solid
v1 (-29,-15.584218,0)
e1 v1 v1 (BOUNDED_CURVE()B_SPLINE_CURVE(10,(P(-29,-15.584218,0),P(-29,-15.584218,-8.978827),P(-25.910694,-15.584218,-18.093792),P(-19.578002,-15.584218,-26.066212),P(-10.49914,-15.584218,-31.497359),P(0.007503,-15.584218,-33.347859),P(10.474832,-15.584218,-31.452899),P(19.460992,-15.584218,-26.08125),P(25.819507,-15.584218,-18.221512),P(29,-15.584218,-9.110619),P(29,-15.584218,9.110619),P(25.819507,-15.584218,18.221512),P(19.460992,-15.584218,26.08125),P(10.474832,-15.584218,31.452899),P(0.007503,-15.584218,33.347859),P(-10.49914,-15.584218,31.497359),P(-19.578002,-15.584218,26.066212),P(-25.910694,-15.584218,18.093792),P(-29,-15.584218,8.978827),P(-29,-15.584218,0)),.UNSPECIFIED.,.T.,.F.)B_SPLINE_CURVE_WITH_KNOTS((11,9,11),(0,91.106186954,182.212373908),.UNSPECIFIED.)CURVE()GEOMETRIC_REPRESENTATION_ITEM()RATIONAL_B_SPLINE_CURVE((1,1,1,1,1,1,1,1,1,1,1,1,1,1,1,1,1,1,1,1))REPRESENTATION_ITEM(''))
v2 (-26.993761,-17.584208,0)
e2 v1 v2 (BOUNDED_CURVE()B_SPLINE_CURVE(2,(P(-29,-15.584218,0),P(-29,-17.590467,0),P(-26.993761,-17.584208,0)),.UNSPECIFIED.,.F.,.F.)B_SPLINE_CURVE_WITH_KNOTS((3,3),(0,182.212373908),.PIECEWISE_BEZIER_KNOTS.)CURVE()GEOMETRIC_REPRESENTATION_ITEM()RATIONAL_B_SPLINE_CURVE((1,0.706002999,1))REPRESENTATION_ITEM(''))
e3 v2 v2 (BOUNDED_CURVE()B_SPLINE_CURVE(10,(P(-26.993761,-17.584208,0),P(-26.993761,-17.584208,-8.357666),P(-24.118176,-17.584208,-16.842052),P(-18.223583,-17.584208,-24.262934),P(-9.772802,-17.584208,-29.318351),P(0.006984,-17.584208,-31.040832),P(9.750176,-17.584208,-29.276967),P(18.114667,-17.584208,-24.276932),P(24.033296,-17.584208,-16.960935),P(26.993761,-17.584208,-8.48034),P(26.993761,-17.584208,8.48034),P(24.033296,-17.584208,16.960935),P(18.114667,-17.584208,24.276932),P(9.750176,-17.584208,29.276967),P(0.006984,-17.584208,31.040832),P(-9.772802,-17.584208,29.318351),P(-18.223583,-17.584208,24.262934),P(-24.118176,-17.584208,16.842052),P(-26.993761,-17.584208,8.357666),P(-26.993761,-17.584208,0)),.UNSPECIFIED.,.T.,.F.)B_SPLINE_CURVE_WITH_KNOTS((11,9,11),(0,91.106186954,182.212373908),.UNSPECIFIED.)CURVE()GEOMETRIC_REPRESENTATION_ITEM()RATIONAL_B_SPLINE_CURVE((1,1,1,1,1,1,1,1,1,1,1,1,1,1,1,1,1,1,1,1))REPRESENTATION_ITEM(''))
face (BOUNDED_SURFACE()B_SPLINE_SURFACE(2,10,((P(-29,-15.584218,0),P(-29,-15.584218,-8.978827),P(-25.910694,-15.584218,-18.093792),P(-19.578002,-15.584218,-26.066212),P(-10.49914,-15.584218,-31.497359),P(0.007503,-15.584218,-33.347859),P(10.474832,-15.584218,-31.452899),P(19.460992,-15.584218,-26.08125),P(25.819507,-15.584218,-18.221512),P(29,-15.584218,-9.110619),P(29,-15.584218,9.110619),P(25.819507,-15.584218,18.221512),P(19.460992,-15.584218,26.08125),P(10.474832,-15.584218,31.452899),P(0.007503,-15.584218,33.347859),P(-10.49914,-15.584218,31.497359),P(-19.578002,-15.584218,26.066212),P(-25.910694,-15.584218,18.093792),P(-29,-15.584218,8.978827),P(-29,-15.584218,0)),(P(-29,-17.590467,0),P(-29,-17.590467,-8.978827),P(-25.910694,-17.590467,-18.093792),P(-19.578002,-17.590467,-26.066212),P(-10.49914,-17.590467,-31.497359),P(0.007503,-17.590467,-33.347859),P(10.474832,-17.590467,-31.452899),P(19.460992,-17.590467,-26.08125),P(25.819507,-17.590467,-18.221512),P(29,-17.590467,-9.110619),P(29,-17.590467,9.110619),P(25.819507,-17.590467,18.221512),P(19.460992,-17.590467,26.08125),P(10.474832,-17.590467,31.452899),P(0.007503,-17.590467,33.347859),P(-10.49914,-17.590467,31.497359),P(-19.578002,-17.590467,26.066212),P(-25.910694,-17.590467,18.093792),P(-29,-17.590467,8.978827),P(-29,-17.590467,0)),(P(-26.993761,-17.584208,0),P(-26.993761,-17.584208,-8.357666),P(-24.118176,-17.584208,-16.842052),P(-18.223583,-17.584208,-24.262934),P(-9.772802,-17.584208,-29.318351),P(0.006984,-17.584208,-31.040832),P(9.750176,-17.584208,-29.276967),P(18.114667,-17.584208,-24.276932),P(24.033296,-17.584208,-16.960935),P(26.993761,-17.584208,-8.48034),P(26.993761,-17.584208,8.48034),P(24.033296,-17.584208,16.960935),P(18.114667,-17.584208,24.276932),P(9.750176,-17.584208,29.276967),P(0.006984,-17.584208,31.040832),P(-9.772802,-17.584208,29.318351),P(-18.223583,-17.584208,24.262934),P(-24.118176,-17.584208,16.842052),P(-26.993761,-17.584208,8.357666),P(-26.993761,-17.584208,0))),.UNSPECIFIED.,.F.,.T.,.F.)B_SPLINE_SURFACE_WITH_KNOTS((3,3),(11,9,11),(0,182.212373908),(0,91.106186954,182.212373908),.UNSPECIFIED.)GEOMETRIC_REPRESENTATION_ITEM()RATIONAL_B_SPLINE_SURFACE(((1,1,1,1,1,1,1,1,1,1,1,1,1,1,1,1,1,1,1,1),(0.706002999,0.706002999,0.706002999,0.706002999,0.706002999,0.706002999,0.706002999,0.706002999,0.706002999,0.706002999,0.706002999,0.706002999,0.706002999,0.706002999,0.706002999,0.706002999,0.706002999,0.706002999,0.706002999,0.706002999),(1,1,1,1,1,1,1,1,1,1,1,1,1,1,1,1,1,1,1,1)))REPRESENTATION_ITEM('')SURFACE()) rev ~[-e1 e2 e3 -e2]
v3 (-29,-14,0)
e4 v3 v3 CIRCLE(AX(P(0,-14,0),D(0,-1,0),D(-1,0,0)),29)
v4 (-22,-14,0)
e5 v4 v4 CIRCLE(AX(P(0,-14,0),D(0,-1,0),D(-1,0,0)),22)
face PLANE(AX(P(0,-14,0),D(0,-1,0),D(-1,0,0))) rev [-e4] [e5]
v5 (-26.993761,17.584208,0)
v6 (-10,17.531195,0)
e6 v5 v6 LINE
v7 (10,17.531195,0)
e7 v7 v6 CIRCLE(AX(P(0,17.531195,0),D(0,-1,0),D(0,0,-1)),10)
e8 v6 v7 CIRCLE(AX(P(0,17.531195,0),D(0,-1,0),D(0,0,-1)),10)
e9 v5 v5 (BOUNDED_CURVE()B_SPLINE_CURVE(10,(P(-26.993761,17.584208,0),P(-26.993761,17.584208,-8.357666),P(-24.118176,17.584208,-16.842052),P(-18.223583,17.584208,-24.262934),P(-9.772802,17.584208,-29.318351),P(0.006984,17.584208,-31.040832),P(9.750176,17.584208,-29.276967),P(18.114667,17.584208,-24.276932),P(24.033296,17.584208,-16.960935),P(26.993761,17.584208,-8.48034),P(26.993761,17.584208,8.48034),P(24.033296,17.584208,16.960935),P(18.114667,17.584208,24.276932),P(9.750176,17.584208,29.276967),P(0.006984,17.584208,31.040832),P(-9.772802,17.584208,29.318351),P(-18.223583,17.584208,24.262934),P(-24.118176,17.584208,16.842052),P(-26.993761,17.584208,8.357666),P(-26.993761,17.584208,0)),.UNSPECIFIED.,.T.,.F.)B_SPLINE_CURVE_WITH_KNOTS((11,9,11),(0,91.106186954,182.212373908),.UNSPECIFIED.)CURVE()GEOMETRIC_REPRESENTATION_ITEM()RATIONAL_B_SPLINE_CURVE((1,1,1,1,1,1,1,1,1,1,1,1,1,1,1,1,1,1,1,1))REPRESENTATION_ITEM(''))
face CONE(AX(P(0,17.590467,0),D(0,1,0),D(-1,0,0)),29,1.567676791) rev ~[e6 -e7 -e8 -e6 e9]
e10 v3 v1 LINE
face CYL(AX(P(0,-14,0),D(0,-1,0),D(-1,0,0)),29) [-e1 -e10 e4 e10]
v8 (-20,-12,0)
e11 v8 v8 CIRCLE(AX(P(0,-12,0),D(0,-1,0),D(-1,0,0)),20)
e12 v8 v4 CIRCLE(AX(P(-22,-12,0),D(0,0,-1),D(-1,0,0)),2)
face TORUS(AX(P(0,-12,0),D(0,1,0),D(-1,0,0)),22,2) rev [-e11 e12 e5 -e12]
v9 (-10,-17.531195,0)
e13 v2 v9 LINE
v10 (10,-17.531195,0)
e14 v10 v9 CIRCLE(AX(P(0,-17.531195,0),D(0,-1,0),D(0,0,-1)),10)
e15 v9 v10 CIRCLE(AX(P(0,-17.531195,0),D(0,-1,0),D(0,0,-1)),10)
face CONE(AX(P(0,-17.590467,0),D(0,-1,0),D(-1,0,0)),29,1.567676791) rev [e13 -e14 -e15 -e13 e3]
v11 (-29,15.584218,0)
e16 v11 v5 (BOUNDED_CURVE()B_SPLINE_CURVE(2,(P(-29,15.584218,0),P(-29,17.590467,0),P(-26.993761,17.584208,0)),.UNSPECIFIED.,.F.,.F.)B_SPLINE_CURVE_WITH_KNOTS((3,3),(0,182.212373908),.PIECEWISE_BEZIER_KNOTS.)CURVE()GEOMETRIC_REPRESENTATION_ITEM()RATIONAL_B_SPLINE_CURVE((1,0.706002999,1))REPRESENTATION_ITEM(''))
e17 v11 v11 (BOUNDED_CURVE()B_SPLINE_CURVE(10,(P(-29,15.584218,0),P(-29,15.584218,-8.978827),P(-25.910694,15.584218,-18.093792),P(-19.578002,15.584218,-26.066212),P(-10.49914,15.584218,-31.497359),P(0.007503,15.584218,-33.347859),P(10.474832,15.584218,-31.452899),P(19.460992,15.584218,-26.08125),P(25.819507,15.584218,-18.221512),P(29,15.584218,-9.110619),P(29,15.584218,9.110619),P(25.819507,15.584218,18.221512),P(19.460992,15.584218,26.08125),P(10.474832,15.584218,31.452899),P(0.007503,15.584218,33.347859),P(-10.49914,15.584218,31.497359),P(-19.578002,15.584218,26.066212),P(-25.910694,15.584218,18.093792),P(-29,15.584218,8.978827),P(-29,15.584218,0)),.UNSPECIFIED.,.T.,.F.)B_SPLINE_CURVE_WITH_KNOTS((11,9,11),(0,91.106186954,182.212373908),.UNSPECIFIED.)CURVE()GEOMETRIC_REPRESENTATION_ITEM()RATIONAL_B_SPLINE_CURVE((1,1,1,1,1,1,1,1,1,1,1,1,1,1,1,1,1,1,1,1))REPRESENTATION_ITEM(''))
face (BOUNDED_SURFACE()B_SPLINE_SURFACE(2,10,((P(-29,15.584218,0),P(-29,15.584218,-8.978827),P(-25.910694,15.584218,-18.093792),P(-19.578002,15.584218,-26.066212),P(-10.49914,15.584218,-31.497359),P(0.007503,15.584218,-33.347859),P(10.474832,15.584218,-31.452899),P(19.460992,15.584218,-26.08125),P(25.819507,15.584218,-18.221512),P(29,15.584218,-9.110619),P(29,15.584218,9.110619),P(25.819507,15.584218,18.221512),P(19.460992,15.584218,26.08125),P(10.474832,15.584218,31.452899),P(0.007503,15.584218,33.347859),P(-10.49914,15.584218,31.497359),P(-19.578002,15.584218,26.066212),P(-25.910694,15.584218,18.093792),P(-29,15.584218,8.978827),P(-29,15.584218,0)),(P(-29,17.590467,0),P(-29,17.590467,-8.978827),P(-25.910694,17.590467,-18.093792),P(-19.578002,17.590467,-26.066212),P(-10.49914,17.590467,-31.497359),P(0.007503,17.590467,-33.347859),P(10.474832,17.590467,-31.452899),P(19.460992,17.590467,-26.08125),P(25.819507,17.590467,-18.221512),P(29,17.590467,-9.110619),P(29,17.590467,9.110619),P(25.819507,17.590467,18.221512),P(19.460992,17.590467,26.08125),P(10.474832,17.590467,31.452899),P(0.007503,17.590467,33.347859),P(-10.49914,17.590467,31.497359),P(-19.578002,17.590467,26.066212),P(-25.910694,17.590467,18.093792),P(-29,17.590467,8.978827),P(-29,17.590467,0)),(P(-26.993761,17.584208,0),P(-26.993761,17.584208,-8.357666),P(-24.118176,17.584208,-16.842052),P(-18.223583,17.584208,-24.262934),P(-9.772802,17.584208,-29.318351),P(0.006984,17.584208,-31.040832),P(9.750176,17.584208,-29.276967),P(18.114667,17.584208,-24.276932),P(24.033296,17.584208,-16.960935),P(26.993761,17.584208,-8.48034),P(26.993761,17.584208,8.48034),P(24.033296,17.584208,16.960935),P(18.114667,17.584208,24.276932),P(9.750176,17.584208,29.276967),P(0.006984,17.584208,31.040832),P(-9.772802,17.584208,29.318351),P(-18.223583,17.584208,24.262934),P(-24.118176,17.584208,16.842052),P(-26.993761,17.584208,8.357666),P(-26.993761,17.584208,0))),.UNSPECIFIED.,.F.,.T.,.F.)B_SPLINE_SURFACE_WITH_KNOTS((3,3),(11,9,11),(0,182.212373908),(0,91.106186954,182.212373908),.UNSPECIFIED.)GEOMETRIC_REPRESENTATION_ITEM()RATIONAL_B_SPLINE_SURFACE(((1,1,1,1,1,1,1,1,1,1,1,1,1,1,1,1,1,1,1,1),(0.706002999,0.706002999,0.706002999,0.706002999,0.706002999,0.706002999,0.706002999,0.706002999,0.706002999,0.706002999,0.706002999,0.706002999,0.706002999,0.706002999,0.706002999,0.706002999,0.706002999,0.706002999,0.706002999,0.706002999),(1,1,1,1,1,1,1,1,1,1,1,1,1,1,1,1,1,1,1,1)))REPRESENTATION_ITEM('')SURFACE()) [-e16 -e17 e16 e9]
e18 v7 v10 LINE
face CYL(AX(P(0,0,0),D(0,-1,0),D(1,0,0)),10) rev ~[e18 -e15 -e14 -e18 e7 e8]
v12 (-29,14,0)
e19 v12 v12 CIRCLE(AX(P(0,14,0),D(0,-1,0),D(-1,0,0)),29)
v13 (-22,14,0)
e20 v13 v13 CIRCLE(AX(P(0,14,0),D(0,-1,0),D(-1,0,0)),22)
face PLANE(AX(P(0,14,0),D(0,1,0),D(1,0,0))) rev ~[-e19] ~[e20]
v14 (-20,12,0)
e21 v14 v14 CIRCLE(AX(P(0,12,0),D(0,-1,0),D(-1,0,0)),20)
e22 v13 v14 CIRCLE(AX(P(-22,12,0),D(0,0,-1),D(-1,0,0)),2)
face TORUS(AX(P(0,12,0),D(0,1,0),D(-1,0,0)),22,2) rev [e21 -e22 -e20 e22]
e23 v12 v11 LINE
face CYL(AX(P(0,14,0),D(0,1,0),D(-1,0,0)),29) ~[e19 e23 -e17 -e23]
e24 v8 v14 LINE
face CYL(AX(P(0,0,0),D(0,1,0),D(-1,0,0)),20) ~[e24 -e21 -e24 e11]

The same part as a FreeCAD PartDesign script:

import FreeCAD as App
import Part
import Sketcher


def edges_at(feature, points):
    """Names of the edges that pass closest to the given points."""
    edges = feature.Shape.Edges
    near = lambda p: min(range(len(edges)), key=lambda i: edges[i].distToShape(Part.Vertex(*p))[0])
    return sorted({f"Edge{near(p) + 1}" for p in points})


def add_polygon(sketch, points):
    """Adds a closed chain of lines whose ends are joined by coincident constraints."""
    first, n = sketch.GeometryCount, len(points)
    for a, b in zip(points, points[1:] + points[:1]):
        sketch.addGeometry(Part.LineSegment(App.Vector(*a, 0), App.Vector(*b, 0)), False)
    for i in range(n):
        sketch.addConstraint(Sketcher.Constraint("Coincident", first + i, 2, first + (i + 1) % n, 1))

doc = App.newDocument("Part")
body = doc.addObject("PartDesign::Body", "Body")

sketch1 = body.newObject("Sketcher::SketchObject", "Sketch")
sketch1.AttachmentSupport = (doc.getObject("XY_Plane"), [""])
sketch1.MapMode = "FlatFace"
add_polygon(sketch1, [(-20, -14), (-29, -14), (-29, -17.590467), (0, -17.5), (0, 0), (-20, 0)])
sketch1.addConstraint([
    Sketcher.Constraint("Horizontal", 0),
    Sketcher.Constraint("Vertical", 1),
    Sketcher.Constraint("Vertical", 3),
    Sketcher.Constraint("Horizontal", 4),
    Sketcher.Constraint("Vertical", 5),
    Sketcher.Constraint("Coincident", 3, 2, -1, 1),
    Sketcher.Constraint("DistanceX", 0, 2, 0, 1, 9.0),
    Sketcher.Constraint("DistanceX", 4, 2, 4, 1, 20.0),
    Sketcher.Constraint("DistanceY", 5, 2, 5, 1, 14.0),
    Sketcher.Constraint("DistanceY", 3, 1, 3, 2, 17.5),
    Sketcher.Constraint("DistanceY", 1, 2, 1, 1, 3.590467),
])
revolution = body.newObject("PartDesign::Revolution", "Revolution")
revolution.Profile = sketch1
revolution.ReferenceAxis = (sketch1, ["V_Axis"])
revolution.Angle = 360
body2 = doc.addObject("PartDesign::Body", "Body001")
doc.recompute()

body2.BaseFeature = body
doc.recompute()

mirroring = doc.addObject("Part::Mirroring", "Mirroring")
mirroring.Source = body
mirroring.Base = App.Vector(0, 0, 0)
mirroring.Normal = App.Vector(0, -1, 0)
body3 = doc.addObject("PartDesign::Body", "Body002")
body3.BaseFeature = mirroring
boolean = body2.newObject("PartDesign::Boolean", "Boolean")
boolean.Type = "Fuse"
boolean.addObjects([body3])
doc.recompute()

fillet = body2.newObject("PartDesign::Fillet", "Fillet")
fillet.Base = (boolean, edges_at(boolean, [(20, 14, 0)]))
fillet.Radius = 2
doc.recompute()

fillet2 = body2.newObject("PartDesign::Fillet", "Fillet001")
fillet2.Base = (fillet, edges_at(fillet, [(20, -14, 0), (29, -17.59, 0), (29, 17.59, 0)]))
fillet2.Radius = 2

sketch2 = body2.newObject("Sketcher::SketchObject", "Sketch001")
sketch2.AttachmentSupport = (doc.getObject("XZ_Plane001"), [""])
sketch2.MapMode = "FlatFace"
sketch2.addGeometry(Part.Circle(App.Vector(0, 0, 0), App.Vector(0, 0, 1), 10), False)
sketch2.addConstraint([
    Sketcher.Constraint("Coincident", 0, 3, -1, 1),
    Sketcher.Constraint("Diameter", 0, 20.0),
])
pocket1 = body2.newObject("PartDesign::Pocket", "Pocket")
pocket1.Profile = sketch2
pocket1.Length = 40
pocket1.Midplane = True
mirroring.Visibility = False

doc.recompute()
